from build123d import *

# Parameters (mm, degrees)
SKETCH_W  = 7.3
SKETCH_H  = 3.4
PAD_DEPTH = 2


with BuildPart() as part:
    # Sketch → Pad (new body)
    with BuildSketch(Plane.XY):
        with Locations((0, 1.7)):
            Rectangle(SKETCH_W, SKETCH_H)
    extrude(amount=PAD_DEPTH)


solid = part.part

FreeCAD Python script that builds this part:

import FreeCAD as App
import Part
import Sketcher
from FreeCAD import Vector
Q = App.Units.Quantity


def add_polygon(sketch, points):
    """Adds a closed chain of lines whose ends are joined by coincident constraints."""
    first, n = sketch.GeometryCount, len(points)
    for a, b in zip(points, points[1:] + points[:1]):
        sketch.addGeometry(Part.LineSegment(App.Vector(*a, 0), App.Vector(*b, 0)), False)
    for i in range(n):
        sketch.addConstraint(Sketcher.Constraint("Coincident", first + i, 2, first + (i + 1) % n, 1))

doc = App.newDocument("Part")
body = doc.addObject("PartDesign::Body", "Body")

# Sketch on XY plane
sketch1 = body.newObject("Sketcher::SketchObject", "Sketch")
sketch1.AttachmentSupport = (doc.getObject("XY_Plane"), [""])
sketch1.MapMode = "FlatFace"
add_polygon(sketch1, [(-3.6, 3.4), (-3.6, 0), (3.6, 0), (3.6, 3.4)])  # lines 0-3
sketch1.addConstraint(Sketcher.Constraint("Vertical", 0))
sketch1.addConstraint(Sketcher.Constraint("Horizontal", 1))
sketch1.addConstraint(Sketcher.Constraint("Vertical", 2))
sketch1.addConstraint(Sketcher.Constraint("Horizontal", 3))
sketch1.addConstraint(Sketcher.Constraint("Symmetric", 0, 2, 1, 2, -1, 1))
sketch1.addConstraint(Sketcher.Constraint("DistanceX", 1, 1, 1, 2, Q("7.3 mm")))
sketch1.addConstraint(Sketcher.Constraint("DistanceY", 0, 2, 0, 1, Q("3.4 mm")))
pad1 = body.newObject("PartDesign::Pad", "Pad")
pad1.Profile = sketch1
pad1.Length = 2

doc.recompute()
